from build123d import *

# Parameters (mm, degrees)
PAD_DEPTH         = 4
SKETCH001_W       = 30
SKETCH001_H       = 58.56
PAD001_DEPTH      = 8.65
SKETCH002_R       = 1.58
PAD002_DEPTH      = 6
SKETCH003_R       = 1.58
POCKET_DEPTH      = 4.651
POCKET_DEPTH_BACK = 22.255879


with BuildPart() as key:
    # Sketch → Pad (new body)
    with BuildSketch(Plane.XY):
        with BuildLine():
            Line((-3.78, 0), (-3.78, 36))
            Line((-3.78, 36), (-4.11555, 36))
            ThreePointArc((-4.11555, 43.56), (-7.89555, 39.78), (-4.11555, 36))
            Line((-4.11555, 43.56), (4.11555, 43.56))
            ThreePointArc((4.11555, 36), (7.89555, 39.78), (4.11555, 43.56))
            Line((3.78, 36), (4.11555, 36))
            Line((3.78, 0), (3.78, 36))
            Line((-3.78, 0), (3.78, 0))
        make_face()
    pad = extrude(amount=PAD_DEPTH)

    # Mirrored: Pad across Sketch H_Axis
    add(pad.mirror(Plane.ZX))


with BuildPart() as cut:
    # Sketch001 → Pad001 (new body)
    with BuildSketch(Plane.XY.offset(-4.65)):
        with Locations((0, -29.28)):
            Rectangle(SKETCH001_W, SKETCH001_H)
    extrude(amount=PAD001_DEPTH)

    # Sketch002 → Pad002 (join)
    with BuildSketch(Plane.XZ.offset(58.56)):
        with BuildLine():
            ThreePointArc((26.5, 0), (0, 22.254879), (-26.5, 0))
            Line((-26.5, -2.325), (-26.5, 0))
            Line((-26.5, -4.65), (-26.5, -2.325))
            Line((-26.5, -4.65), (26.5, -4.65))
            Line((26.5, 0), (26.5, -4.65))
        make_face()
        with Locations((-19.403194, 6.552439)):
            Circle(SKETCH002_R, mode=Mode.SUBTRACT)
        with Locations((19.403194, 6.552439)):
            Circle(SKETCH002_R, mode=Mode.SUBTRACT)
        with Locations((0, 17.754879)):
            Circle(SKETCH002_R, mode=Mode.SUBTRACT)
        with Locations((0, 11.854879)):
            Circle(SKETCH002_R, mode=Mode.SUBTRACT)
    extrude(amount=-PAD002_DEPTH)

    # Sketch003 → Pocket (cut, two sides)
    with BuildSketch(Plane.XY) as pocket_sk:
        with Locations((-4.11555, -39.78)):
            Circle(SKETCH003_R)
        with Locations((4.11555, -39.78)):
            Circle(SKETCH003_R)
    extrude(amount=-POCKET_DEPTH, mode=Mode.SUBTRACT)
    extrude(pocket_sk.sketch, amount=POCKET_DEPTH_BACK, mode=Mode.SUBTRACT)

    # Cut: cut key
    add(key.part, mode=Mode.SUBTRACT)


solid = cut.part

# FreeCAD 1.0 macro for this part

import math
import FreeCAD as App
import Part
import Sketcher
from FreeCAD import Vector

doc = App.newDocument("Part")
body = doc.addObject("PartDesign::Body", "Body")

sketch1 = body.newObject("Sketcher::SketchObject", "Sketch")
sketch1.AttachmentSupport = (doc.getObject("XY_Plane"), [""])
sketch1.MapMode = "FlatFace"
sketch1.addGeometry([
    Part.LineSegment(Vector(-3.78, 36, 0), Vector(-3.78, 0, 0)),
    Part.LineSegment(Vector(-3.78, 0, 0), Vector(3.78, 0, 0)),
    Part.LineSegment(Vector(3.78, 0, 0), Vector(3.78, 36, 0)),
    Part.LineSegment(Vector(3.78, 36, 0), Vector(4.12, 36, 0)),
    Part.ArcOfCircle(Part.Circle(Vector(4.12, 39.78, 0), Vector(0, 0, 1), 3.78), math.radians(-90), math.radians(90)),
    Part.LineSegment(Vector(4.12, 43.56, 0), Vector(-4.12, 43.56, 0)),
    Part.ArcOfCircle(Part.Circle(Vector(-4.12, 39.78, 0), Vector(0, 0, 1), 3.78), math.radians(90), math.radians(270)),
    Part.LineSegment(Vector(-4.12, 36, 0), Vector(-3.78, 36, 0)),
], False)
sketch1.addConstraint([
    Sketcher.Constraint("Coincident", 0, 2, 1, 1),
    Sketcher.Constraint("Coincident", 1, 2, 2, 1),
    Sketcher.Constraint("Coincident", 2, 2, 3, 1),
    Sketcher.Constraint("Tangent", 3, 2, 4, 1),
    Sketcher.Constraint("Tangent", 4, 2, 5, 1),
    Sketcher.Constraint("Tangent", 5, 2, 6, 1),
    Sketcher.Constraint("Tangent", 6, 2, 7, 1),
    Sketcher.Constraint("Coincident", 7, 2, 0, 1),
    Sketcher.Constraint("Vertical", 0),
    Sketcher.Constraint("Horizontal", 1),
    Sketcher.Constraint("Vertical", 2),
    Sketcher.Constraint("Horizontal", 3),
    Sketcher.Constraint("Horizontal", 5),
    Sketcher.Constraint("Horizontal", 7),
    Sketcher.Constraint("Equal", 4, 6),
    Sketcher.Constraint("Symmetric", 0, 2, 1, 2, -1, 1),
    Sketcher.Constraint("Equal", 3, 7),
    Sketcher.Constraint("DistanceY", 0, 2, 0, 1, 36.0),
    Sketcher.Constraint("Radius", 4, 3.78),
    Sketcher.Constraint("DistanceX", 1, 1, 1, 2, 7.56),
    Sketcher.Constraint("DistanceX", 5, 2, 5, 1, 8.2311),
])
pad1 = body.newObject("PartDesign::Pad", "Pad")
pad1.Profile = sketch1
pad1.Length = 4
doc.recompute()

mirrored = body.newObject("PartDesign::Mirrored", "Mirrored")
mirrored.Originals = [pad1]
mirrored.MirrorPlane = (doc.getObject("XZ_Plane"), [""])
body.Tip = mirrored
body2 = doc.addObject("PartDesign::Body", "Body001")

sketch2 = body2.newObject("Sketcher::SketchObject", "Sketch001")
sketch2.AttachmentSupport = (doc.getObject("XY_Plane001"), [""])
sketch2.MapMode = "FlatFace"
sketch2.AttachmentOffset = App.Placement(Vector(0, 0, -4.65), App.Rotation())
sketch2.addGeometry([
    Part.LineSegment(Vector(-15, 0, 0), Vector(-15, -59, 0)),
    Part.LineSegment(Vector(-15, -59, 0), Vector(15, -59, 0)),
    Part.LineSegment(Vector(15, -59, 0), Vector(15, 0, 0)),
    Part.LineSegment(Vector(15, 0, 0), Vector(-15, 0, 0)),
], False)
sketch2.addConstraint([
    Sketcher.Constraint("Coincident", 0, 2, 1, 1),
    Sketcher.Constraint("Coincident", 1, 2, 2, 1),
    Sketcher.Constraint("Coincident", 2, 2, 3, 1),
    Sketcher.Constraint("Coincident", 3, 2, 0, 1),
    Sketcher.Constraint("Vertical", 0),
    Sketcher.Constraint("Horizontal", 1),
    Sketcher.Constraint("Vertical", 2),
    Sketcher.Constraint("Horizontal", 3),
    Sketcher.Constraint("Symmetric", 2, 2, 3, 2, -1, 1),
    Sketcher.Constraint("DistanceX", 1, 1, 1, 2, 30.0),
    Sketcher.Constraint("DistanceY", 0, 2, 0, 1, 58.56),
])
pad2 = body2.newObject("PartDesign::Pad", "Pad001")
pad2.Profile = sketch2
pad2.Length = 8.65

sketch3 = body2.newObject("Sketcher::SketchObject", "Sketch002")
sketch3.AttachmentSupport = (doc.getObject("XZ_Plane001"), [""])
sketch3.MapMode = "FlatFace"
sketch3.AttachmentOffset = App.Placement(Vector(0, 0, 58.56), App.Rotation())
sketch3.addGeometry([
    Part.ArcOfCircle(Part.Circle(Vector(0, -4.6, 0), Vector(0, 0, 1), 26.9), math.radians(10), math.radians(170)),
    Part.LineSegment(Vector(-26.5, 0, 0), Vector(-26.5, -4.7, 0)),
    Part.LineSegment(Vector(-26.5, -4.7, 0), Vector(26.5, -4.7, 0)),
    Part.LineSegment(Vector(26.5, -4.7, 0), Vector(26.5, 0, 0)),
    Part.Circle(Vector(-19.4, 6.6, 0), Vector(0, 0, 1), 1.6),
    Part.Circle(Vector(19.4, 6.6, 0), Vector(0, 0, 1), 1.6),
    Part.Circle(Vector(0, 11.9, 0), Vector(0, 0, 1), 1.6),
    Part.Circle(Vector(0, 17.8, 0), Vector(0, 0, 1), 1.6),
], False)
sketch3.addConstraint([
    Sketcher.Constraint("Coincident", 0, 2, 1, 1),
    Sketcher.Constraint("Coincident", 1, 2, 2, 1),
    Sketcher.Constraint("Coincident", 2, 2, 3, 1),
    Sketcher.Constraint("Coincident", 3, 2, 0, 1),
    Sketcher.Constraint("Vertical", 1),
    Sketcher.Constraint("Horizontal", 2),
    Sketcher.Constraint("Vertical", 3),
    Sketcher.Constraint("Equal", 4, 5),
    Sketcher.Constraint("Equal", 5, 6),
    Sketcher.Constraint("Equal", 6, 7),
    Sketcher.Constraint("Symmetric", 0, 2, 3, 2, -1, 1),
    Sketcher.Constraint("Symmetric", 4, 3, 5, 3, -2),
    Sketcher.Constraint("PointOnObject", 0, 3, -2),
    Sketcher.Constraint("PointOnObject", 6, 3, -2),
    Sketcher.Constraint("PointOnObject", 7, 3, -2),
    Sketcher.Constraint("Horizontal", 0, 3, 1, 2),
    Sketcher.Constraint("Diameter", 4, 3.16),
    Sketcher.Constraint("DistanceX", 2, 1, 2, 2, 53.0),
    Sketcher.Constraint("DistanceY", 1, 2, 1, 1, 4.65),
    Sketcher.Constraint("DistanceY", 6, 3, 7, 3, 5.9),
    Sketcher.Constraint("DistanceY", -1, 1, 4, 3, 6.552439),
    Sketcher.Constraint("DistanceY", -1, 1, 6, 3, 11.854879),
    Sketcher.Constraint("DistanceX", 4, 3, -1, 1, 19.403194),
])
pad3 = body2.newObject("PartDesign::Pad", "Pad002")
pad3.Profile = sketch3
pad3.Length = 6
pad3.Reversed = True

sketch4 = body2.newObject("Sketcher::SketchObject", "Sketch003")
sketch4.AttachmentSupport = (doc.getObject("XY_Plane001"), [""])
sketch4.MapMode = "FlatFace"
sketch4.addGeometry([
    Part.Circle(Vector(-4.1, -39.8, 0), Vector(0, 0, 1), 1.6),
    Part.Circle(Vector(4.1, -39.8, 0), Vector(0, 0, 1), 1.6),
], False)
sketch4.addConstraint([
    Sketcher.Constraint("Equal", 0, 1),
    Sketcher.Constraint("Symmetric", 0, 3, 1, 3, -2),
    Sketcher.Constraint("Diameter", 0, 3.16),
    Sketcher.Constraint("DistanceY", 0, 3, -1, 1, 39.78),
    Sketcher.Constraint("DistanceX", 0, 3, 1, 3, 8.2311),
])
pocket1 = body2.newObject("PartDesign::Pocket", "Pocket")
pocket1.Profile = sketch4
pocket1.Type = "ThroughAll"
pocket1.Midplane = True
doc.recompute()

boolean = body2.newObject("PartDesign::Boolean", "Boolean")
boolean.Type = "Cut"
boolean.addObjects([body])

doc.recompute()
